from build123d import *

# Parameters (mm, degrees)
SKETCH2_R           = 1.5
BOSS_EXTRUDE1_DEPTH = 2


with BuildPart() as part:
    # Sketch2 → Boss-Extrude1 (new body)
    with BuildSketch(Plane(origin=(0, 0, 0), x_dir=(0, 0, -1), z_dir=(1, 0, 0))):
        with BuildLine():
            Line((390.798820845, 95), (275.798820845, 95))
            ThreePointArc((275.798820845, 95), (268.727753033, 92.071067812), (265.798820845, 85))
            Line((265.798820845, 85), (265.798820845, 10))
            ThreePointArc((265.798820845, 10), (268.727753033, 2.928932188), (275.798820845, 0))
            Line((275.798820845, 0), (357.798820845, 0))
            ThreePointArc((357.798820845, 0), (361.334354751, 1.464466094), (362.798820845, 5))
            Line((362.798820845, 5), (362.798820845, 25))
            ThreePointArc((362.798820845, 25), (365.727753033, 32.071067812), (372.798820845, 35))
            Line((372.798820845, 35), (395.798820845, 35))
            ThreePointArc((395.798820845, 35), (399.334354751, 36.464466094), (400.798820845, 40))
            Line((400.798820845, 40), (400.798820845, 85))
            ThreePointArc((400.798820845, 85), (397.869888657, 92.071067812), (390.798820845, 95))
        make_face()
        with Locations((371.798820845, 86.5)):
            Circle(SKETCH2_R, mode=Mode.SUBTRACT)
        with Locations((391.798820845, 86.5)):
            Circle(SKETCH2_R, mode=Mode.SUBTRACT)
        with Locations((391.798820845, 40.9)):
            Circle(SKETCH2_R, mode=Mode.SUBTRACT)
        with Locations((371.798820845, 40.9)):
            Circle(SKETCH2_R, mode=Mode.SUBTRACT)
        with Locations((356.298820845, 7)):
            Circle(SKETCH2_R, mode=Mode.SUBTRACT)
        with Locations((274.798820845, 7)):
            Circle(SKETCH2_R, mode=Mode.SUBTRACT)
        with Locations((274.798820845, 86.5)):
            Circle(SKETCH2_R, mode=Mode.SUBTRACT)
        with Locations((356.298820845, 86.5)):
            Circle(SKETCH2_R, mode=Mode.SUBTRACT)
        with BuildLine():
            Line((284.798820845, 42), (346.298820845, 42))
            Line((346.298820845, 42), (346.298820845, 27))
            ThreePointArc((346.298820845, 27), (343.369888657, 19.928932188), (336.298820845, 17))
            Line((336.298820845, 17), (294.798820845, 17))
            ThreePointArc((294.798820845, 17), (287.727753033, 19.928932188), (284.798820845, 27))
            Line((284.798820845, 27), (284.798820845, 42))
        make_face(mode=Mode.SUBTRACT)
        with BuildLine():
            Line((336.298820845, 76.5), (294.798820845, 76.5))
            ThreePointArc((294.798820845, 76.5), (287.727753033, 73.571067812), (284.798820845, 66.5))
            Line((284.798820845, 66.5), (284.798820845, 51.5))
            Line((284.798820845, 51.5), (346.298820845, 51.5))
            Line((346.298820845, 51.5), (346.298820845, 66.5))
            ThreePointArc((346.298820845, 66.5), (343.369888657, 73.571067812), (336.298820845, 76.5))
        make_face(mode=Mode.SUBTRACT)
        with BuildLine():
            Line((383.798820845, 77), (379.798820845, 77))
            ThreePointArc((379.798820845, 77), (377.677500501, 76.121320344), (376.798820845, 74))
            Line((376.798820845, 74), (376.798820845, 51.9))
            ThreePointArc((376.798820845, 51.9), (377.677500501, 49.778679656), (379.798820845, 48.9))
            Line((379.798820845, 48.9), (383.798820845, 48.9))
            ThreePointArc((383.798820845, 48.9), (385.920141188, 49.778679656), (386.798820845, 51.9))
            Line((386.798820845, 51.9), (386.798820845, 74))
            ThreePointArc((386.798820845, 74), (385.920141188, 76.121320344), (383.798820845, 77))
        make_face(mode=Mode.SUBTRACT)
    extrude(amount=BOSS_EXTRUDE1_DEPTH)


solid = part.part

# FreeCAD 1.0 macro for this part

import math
import FreeCAD as App
import Part
import Sketcher

doc = App.newDocument("Part")
body = doc.addObject("PartDesign::Body", "Body")

sketch1 = doc.addObject("Sketcher::SketchObject", "Sketch")
body.addObject(sketch1)
sketch1.AttachmentSupport = (doc.YZ_Plane, [""])
sketch1.MapMode = "FlatFace"
sketch1.addGeometry([
    Part.LineSegment(App.Vector(95, -390.8, 0), App.Vector(95, -275.8, 0)),
    Part.ArcOfCircle(Part.Circle(App.Vector(85, -275.8, 0), App.Vector(0, 0, 1), 10), math.radians(0), math.radians(90)),
    Part.LineSegment(App.Vector(85, -265.8, 0), App.Vector(10, -265.8, 0)),
    Part.ArcOfCircle(Part.Circle(App.Vector(10, -275.8, 0), App.Vector(0, 0, 1), 10), math.radians(90), math.radians(180)),
    Part.LineSegment(App.Vector(0, -275.8, 0), App.Vector(0, -357.8, 0)),
    Part.ArcOfCircle(Part.Circle(App.Vector(5, -357.8, 0), App.Vector(0, 0, 1), 5), math.radians(180), math.radians(270)),
    Part.LineSegment(App.Vector(5, -362.8, 0), App.Vector(25, -362.8, 0)),
    Part.ArcOfCircle(Part.Circle(App.Vector(25, -372.8, 0), App.Vector(0, 0, 1), 10), math.radians(0), math.radians(90)),
    Part.LineSegment(App.Vector(35, -372.8, 0), App.Vector(35, -395.8, 0)),
    Part.ArcOfCircle(Part.Circle(App.Vector(40, -395.8, 0), App.Vector(0, 0, 1), 5), math.radians(180), math.radians(270)),
    Part.LineSegment(App.Vector(40, -400.8, 0), App.Vector(85, -400.8, 0)),
    Part.ArcOfCircle(Part.Circle(App.Vector(85, -390.8, 0), App.Vector(0, 0, 1), 10), math.radians(-90), math.radians(0)),
    Part.Circle(App.Vector(7, -274.8, 0), App.Vector(0, 0, 1), 1.5),
    Part.LineSegment(App.Vector(27, -284.8, 0), App.Vector(42, -284.8, 0)),
    Part.LineSegment(App.Vector(42, -284.8, 0), App.Vector(42, -346.3, 0)),
    Part.LineSegment(App.Vector(42, -346.3, 0), App.Vector(27, -346.3, 0)),
    Part.ArcOfCircle(Part.Circle(App.Vector(27, -336.3, 0), App.Vector(0, 0, 1), 10), math.radians(180), math.radians(270)),
    Part.LineSegment(App.Vector(17, -336.3, 0), App.Vector(17, -294.8, 0)),
    Part.ArcOfCircle(Part.Circle(App.Vector(27, -294.8, 0), App.Vector(0, 0, 1), 10), math.radians(90), math.radians(180)),
    Part.Circle(App.Vector(7, -356.3, 0), App.Vector(0, 0, 1), 1.5),
    Part.Circle(App.Vector(40.9, -371.8, 0), App.Vector(0, 0, 1), 1.5),
    Part.Circle(App.Vector(40.9, -391.8, 0), App.Vector(0, 0, 1), 1.5),
    Part.LineSegment(App.Vector(76.5, -294.8, 0), App.Vector(76.5, -336.3, 0)),
    Part.ArcOfCircle(Part.Circle(App.Vector(66.5, -336.3, 0), App.Vector(0, 0, 1), 10), math.radians(-90), math.radians(0)),
    Part.LineSegment(App.Vector(66.5, -346.3, 0), App.Vector(51.5, -346.3, 0)),
    Part.LineSegment(App.Vector(51.5, -346.3, 0), App.Vector(51.5, -284.8, 0)),
    Part.LineSegment(App.Vector(51.5, -284.8, 0), App.Vector(66.5, -284.8, 0)),
    Part.ArcOfCircle(Part.Circle(App.Vector(66.5, -294.8, 0), App.Vector(0, 0, 1), 10), math.radians(0), math.radians(90)),
    Part.Circle(App.Vector(86.5, -274.8, 0), App.Vector(0, 0, 1), 1.5),
    Part.LineSegment(App.Vector(77, -379.8, 0), App.Vector(77, -383.8, 0)),
    Part.ArcOfCircle(Part.Circle(App.Vector(74, -383.8, 0), App.Vector(0, 0, 1), 3), math.radians(-90), math.radians(0)),
    Part.LineSegment(App.Vector(74, -386.8, 0), App.Vector(51.9, -386.8, 0)),
    Part.ArcOfCircle(Part.Circle(App.Vector(51.9, -383.8, 0), App.Vector(0, 0, 1), 3), math.radians(180), math.radians(270)),
    Part.LineSegment(App.Vector(48.9, -383.8, 0), App.Vector(48.9, -379.8, 0)),
    Part.ArcOfCircle(Part.Circle(App.Vector(51.9, -379.8, 0), App.Vector(0, 0, 1), 3), math.radians(90), math.radians(180)),
    Part.LineSegment(App.Vector(51.9, -376.8, 0), App.Vector(74, -376.8, 0)),
    Part.ArcOfCircle(Part.Circle(App.Vector(74, -379.8, 0), App.Vector(0, 0, 1), 3), math.radians(0), math.radians(90)),
    Part.Circle(App.Vector(86.5, -356.3, 0), App.Vector(0, 0, 1), 1.5),
    Part.Circle(App.Vector(86.5, -371.8, 0), App.Vector(0, 0, 1), 1.5),
    Part.Circle(App.Vector(86.5, -391.8, 0), App.Vector(0, 0, 1), 1.5),
], False)
sketch1.addConstraint([
    Sketcher.Constraint("Tangent", 0, 2, 1, 1),
    Sketcher.Constraint("Tangent", 1, 2, 2, 1),
    Sketcher.Constraint("Tangent", 2, 2, 3, 1),
    Sketcher.Constraint("Tangent", 3, 2, 4, 1),
    Sketcher.Constraint("Tangent", 4, 2, 5, 1),
    Sketcher.Constraint("Tangent", 5, 2, 6, 1),
    Sketcher.Constraint("Tangent", 6, 2, 7, 2),
    Sketcher.Constraint("Tangent", 7, 1, 8, 1),
    Sketcher.Constraint("Tangent", 8, 2, 9, 1),
    Sketcher.Constraint("Tangent", 9, 2, 10, 1),
    Sketcher.Constraint("Tangent", 10, 2, 11, 1),
    Sketcher.Constraint("Tangent", 11, 2, 0, 1),
    Sketcher.Constraint("Coincident", 13, 2, 14, 1),
    Sketcher.Constraint("Coincident", 14, 2, 15, 1),
    Sketcher.Constraint("Tangent", 15, 2, 16, 2),
    Sketcher.Constraint("Tangent", 16, 1, 17, 1),
    Sketcher.Constraint("Tangent", 17, 2, 18, 2),
    Sketcher.Constraint("Tangent", 18, 1, 13, 1),
    Sketcher.Constraint("Tangent", 22, 2, 23, 2),
    Sketcher.Constraint("Tangent", 23, 1, 24, 1),
    Sketcher.Constraint("Coincident", 24, 2, 25, 1),
    Sketcher.Constraint("Coincident", 25, 2, 26, 1),
    Sketcher.Constraint("Tangent", 26, 2, 27, 2),
    Sketcher.Constraint("Tangent", 27, 1, 22, 1),
    Sketcher.Constraint("Tangent", 29, 2, 30, 2),
    Sketcher.Constraint("Tangent", 30, 1, 31, 1),
    Sketcher.Constraint("Tangent", 31, 2, 32, 2),
    Sketcher.Constraint("Tangent", 32, 1, 33, 1),
    Sketcher.Constraint("Tangent", 33, 2, 34, 2),
    Sketcher.Constraint("Tangent", 34, 1, 35, 1),
    Sketcher.Constraint("Tangent", 35, 2, 36, 2),
    Sketcher.Constraint("Tangent", 36, 1, 29, 1),
    Sketcher.Constraint("Vertical", 0),
    Sketcher.Constraint("Horizontal", 2),
    Sketcher.Constraint("Vertical", 4),
    Sketcher.Constraint("Horizontal", 6),
    Sketcher.Constraint("Vertical", 8),
    Sketcher.Constraint("Horizontal", 10),
    Sketcher.Constraint("Horizontal", 13),
    Sketcher.Constraint("Vertical", 14),
    Sketcher.Constraint("Horizontal", 15),
    Sketcher.Constraint("Vertical", 17),
    Sketcher.Constraint("Vertical", 22),
    Sketcher.Constraint("Horizontal", 24),
    Sketcher.Constraint("Vertical", 25),
    Sketcher.Constraint("Horizontal", 26),
    Sketcher.Constraint("Vertical", 29),
    Sketcher.Constraint("Horizontal", 31),
    Sketcher.Constraint("Vertical", 33),
    Sketcher.Constraint("Horizontal", 35),
    Sketcher.Constraint("Equal", 1, 3),
    Sketcher.Constraint("Equal", 3, 7),
    Sketcher.Constraint("Equal", 5, 9),
    Sketcher.Constraint("Equal", 7, 11),
    Sketcher.Constraint("Equal", 11, 16),
    Sketcher.Constraint("Equal", 16, 18),
    Sketcher.Constraint("Equal", 12, 19),
    Sketcher.Constraint("Equal", 19, 20),
    Sketcher.Constraint("Equal", 20, 21),
    Sketcher.Constraint("Equal", 18, 23),
    Sketcher.Constraint("Equal", 23, 27),
    Sketcher.Constraint("Equal", 21, 28),
    Sketcher.Constraint("Equal", 30, 32),
    Sketcher.Constraint("Equal", 32, 34),
    Sketcher.Constraint("Equal", 34, 36),
    Sketcher.Constraint("Equal", 28, 37),
    Sketcher.Constraint("Equal", 37, 38),
    Sketcher.Constraint("Equal", 38, 39),
    Sketcher.Constraint("PointOnObject", 3, 2, -2),
    Sketcher.Constraint("Horizontal", 16, 3, 23, 3),
    Sketcher.Constraint("Horizontal", 18, 3, 27, 3),
    Sketcher.Constraint("Horizontal", 12, 3, 28, 3),
    Sketcher.Constraint("Horizontal", 19, 3, 37, 3),
    Sketcher.Constraint("Horizontal", 20, 3, 38, 3),
    Sketcher.Constraint("Horizontal", 21, 3, 39, 3),
    Sketcher.Constraint("Vertical", 12, 3, 19, 3),
    Sketcher.Constraint("Vertical", 20, 3, 21, 3),
    Sketcher.Constraint("Vertical", 28, 3, 37, 3),
    Sketcher.Constraint("Vertical", 37, 3, 38, 3),
    Sketcher.Constraint("Vertical", 38, 3, 39, 3),
    Sketcher.Constraint("Equal", 15, 24),
    Sketcher.Constraint("Diameter", 12, 3.0),
    Sketcher.Constraint("Radius", 1, 10.0),
    Sketcher.Constraint("Radius", 5, 5.0),
    Sketcher.Constraint("Radius", 30, 3.0),
    Sketcher.Constraint("DistanceX", 2, 2, 2, 1, 75.0),
    Sketcher.Constraint("DistanceX", 6, 1, 6, 2, 20.0),
    Sketcher.Constraint("DistanceX", 13, 1, 13, 2, 15.0),
    Sketcher.Constraint("DistanceY", 0, 1, 0, 2, 115.0),
    Sketcher.Constraint("DistanceY", 4, 2, 4, 1, 82.0),
    Sketcher.Constraint("DistanceY", 29, 2, 29, 1, 4.0),
    Sketcher.Constraint("DistanceX", 31, 2, 31, 1, 22.1),
    Sketcher.Constraint("DistanceY", 14, 2, 14, 1, 61.5),
    Sketcher.Constraint("DistanceX", -1, 1, 12, 3, 7.0),
    Sketcher.Constraint("DistanceX", -1, 1, 16, 3, 27.0),
    Sketcher.Constraint("DistanceX", -1, 1, 30, 3, 74.0),
    Sketcher.Constraint("DistanceY", 3, 3, 12, 3, 1.0),
    Sketcher.Constraint("DistanceY", 18, 3, 3, 3, 19.0),
    Sketcher.Constraint("DistanceY", 19, 3, 16, 3, 20.0),
    Sketcher.Constraint("DistanceY", 7, 3, 20, 3, 1.0),
    Sketcher.Constraint("DistanceY", 9, 3, 21, 3, 4.0),
    Sketcher.Constraint("DistanceX", 27, 3, 28, 3, 20.0),
    Sketcher.Constraint("DistanceY", 11, 3, 30, 3, 7.0),
    Sketcher.Constraint("DistanceX", 21, 3, 32, 3, 11.0),
    Sketcher.Constraint("DistanceX", -1, 1, 23, 3, 66.5),
    Sketcher.Constraint("DistanceY", 1, 3, -1, 1, 275.798821),
])
pad1 = doc.addObject("PartDesign::Pad", "Pad")
body.addObject(pad1)
pad1.Profile = sketch1
pad1.Length = 2

doc.recompute()
